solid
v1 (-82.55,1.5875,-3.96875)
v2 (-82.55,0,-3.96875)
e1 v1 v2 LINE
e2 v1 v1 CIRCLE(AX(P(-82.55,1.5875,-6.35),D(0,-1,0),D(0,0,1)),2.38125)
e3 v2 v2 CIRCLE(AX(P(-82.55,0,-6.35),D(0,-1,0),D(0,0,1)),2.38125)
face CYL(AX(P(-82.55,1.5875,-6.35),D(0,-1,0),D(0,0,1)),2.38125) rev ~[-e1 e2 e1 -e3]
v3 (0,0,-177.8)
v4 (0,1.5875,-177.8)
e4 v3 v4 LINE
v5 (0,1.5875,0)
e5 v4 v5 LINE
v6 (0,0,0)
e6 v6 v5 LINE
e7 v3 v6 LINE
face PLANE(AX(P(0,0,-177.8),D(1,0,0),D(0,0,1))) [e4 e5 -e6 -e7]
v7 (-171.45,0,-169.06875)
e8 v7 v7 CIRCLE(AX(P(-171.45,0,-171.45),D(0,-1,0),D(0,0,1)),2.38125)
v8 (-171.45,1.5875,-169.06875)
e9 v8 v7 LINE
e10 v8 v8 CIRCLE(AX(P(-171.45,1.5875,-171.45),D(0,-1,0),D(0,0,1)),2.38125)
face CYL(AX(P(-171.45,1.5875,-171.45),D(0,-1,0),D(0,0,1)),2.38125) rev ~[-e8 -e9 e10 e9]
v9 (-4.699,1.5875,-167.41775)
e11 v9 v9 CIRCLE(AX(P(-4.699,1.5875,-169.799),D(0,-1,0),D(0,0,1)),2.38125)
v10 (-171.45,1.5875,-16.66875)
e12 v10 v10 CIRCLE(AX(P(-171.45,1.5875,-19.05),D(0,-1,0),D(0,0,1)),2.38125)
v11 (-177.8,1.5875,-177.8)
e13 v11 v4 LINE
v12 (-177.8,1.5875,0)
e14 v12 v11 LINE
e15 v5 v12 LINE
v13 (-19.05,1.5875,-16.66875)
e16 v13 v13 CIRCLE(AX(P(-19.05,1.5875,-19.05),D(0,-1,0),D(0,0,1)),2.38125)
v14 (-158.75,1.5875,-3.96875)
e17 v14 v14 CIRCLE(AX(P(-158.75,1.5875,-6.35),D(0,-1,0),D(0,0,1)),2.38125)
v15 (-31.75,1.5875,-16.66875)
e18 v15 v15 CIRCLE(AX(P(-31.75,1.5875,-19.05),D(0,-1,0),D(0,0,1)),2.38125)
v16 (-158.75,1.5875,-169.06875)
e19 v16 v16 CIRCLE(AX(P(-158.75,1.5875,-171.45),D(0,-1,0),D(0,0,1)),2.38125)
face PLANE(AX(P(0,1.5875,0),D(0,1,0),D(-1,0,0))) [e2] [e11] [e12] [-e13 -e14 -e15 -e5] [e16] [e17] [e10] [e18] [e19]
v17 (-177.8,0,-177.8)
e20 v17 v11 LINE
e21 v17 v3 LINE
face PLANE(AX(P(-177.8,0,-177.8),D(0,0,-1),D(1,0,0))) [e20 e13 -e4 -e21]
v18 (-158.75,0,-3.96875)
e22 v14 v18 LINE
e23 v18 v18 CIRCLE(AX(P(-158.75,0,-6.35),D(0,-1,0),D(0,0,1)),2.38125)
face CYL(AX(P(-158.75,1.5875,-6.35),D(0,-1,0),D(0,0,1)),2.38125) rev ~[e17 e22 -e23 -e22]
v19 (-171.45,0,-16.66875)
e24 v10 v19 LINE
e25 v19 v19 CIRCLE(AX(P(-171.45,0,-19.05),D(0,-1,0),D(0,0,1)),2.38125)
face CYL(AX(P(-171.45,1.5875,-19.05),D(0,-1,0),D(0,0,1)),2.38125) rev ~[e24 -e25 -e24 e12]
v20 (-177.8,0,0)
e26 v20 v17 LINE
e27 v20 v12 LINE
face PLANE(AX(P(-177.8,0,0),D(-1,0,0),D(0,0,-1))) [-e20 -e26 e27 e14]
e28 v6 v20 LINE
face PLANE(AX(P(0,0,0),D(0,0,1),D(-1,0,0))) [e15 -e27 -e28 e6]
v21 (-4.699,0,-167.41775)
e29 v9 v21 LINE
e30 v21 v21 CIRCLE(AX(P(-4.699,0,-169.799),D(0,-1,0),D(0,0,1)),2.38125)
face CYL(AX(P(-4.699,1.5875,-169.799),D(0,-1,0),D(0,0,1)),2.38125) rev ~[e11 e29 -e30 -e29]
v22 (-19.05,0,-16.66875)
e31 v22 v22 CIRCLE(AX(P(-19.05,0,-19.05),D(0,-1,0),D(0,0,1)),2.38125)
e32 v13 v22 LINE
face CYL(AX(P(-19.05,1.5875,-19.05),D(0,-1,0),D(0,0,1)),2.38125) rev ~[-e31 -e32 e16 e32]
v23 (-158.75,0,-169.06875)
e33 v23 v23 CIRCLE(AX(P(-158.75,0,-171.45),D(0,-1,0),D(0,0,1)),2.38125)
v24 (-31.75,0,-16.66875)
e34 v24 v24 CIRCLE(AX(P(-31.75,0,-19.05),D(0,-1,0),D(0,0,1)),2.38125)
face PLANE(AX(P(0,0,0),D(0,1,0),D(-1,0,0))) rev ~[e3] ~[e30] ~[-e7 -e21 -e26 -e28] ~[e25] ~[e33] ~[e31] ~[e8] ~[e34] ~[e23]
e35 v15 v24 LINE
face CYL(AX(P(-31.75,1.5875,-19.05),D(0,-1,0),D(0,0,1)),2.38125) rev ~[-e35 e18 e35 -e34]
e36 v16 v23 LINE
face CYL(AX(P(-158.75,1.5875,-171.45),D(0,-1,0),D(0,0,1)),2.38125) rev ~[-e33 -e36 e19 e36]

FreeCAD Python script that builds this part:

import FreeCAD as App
import Part
import Sketcher

V = App.Vector
Q = App.Units.Quantity

doc = App.newDocument("Part")
body = doc.addObject("PartDesign::Body", "Body")

# Sketch on XZ plane
sketch1 = body.newObject("Sketcher::SketchObject", "Sketch")
sketch1.AttachmentSupport = (doc.getObject("XZ_Plane"), [""])
sketch1.MapMode = "FlatFace"
sketch1.addGeometry(Part.LineSegment(V(-178, 0, 0), V(0, 0, 0)), False)
sketch1.addGeometry(Part.LineSegment(V(0, 0, 0), V(0, -178, 0)), False)
sketch1.addGeometry(Part.LineSegment(V(0, -178, 0), V(-178, -178, 0)), False)
sketch1.addGeometry(Part.LineSegment(V(-178, -178, 0), V(-178, 0, 0)), False)
sketch1.addConstraint(Sketcher.Constraint("Coincident", 0, 2, 1, 1))
sketch1.addConstraint(Sketcher.Constraint("Coincident", 1, 2, 2, 1))
sketch1.addConstraint(Sketcher.Constraint("Coincident", 2, 2, 3, 1))
sketch1.addConstraint(Sketcher.Constraint("Coincident", 3, 2, 0, 1))
sketch1.addConstraint(Sketcher.Constraint("Horizontal", 0))
sketch1.addConstraint(Sketcher.Constraint("Vertical", 1))
sketch1.addConstraint(Sketcher.Constraint("Horizontal", 2))
sketch1.addConstraint(Sketcher.Constraint("Vertical", 3))
sketch1.addConstraint(Sketcher.Constraint("Coincident", 0, 2, -1, 1))
sketch1.addConstraint(Sketcher.Constraint("Equal", 2, 1))
sketch1.addConstraint(Sketcher.Constraint("DistanceX", 0, 1, 0, 2, Q("7 in")))
pad1 = body.newObject("PartDesign::Pad", "Pad")
pad1.Profile = sketch1
pad1.Length = Q("0.0625 in")
pad1.Reversed = True

# Sketch on XZ plane
sketch2 = body.newObject("Sketcher::SketchObject", "Sketch001")
sketch2.AttachmentSupport = (doc.getObject("XZ_Plane"), [""])
sketch2.MapMode = "FlatFace"
sketch2.AttachmentOffset = App.Placement(V(0, 0, -0.0625 * 25.4), App.Rotation())
sketch2.addGeometry(Part.Circle(V(-171.4, -171.4, 0), V(0, 0, 1), 2.4), False)
sketch2.addGeometry(Part.Circle(V(-158.8, -171.4, 0), V(0, 0, 1), 2.4), False)
sketch2.addGeometry(Part.Circle(V(-19.1, -19.1, 0), V(0, 0, 1), 2.4), False)
sketch2.addGeometry(Part.Circle(V(-31.8, -19.1, 0), V(0, 0, 1), 2.4), False)
sketch2.addGeometry(Part.Circle(V(-171.4, -19.1, 0), V(0, 0, 1), 2.4), False)
sketch2.addGeometry(Part.Circle(V(-158.8, -6.3, 0), V(0, 0, 1), 2.4), False)
sketch2.addGeometry(Part.Circle(V(-4.7, -169.8, 0), V(0, 0, 1), 2.4), False)
sketch2.addConstraint(Sketcher.Constraint("Equal", 0, 1))
sketch2.addConstraint(Sketcher.Constraint("Equal", 1, 2))
sketch2.addConstraint(Sketcher.Constraint("Equal", 2, 3))
sketch2.addConstraint(Sketcher.Constraint("Equal", 3, 4))
sketch2.addConstraint(Sketcher.Constraint("Equal", 4, 5))
sketch2.addConstraint(Sketcher.Constraint("Equal", 5, 6))
sketch2.addConstraint(Sketcher.Constraint("Horizontal", 0, 3, 1, 3))
sketch2.addConstraint(Sketcher.Constraint("Horizontal", 2, 3, 3, 3))
sketch2.addConstraint(Sketcher.Constraint("Horizontal", 3, 3, 4, 3))
sketch2.addConstraint(Sketcher.Constraint("Vertical", 0, 3, 4, 3))
sketch2.addConstraint(Sketcher.Constraint("Vertical", 1, 3, 5, 3))
sketch2.addConstraint(Sketcher.Constraint("Diameter", 0, Q("0.1875 in")))
sketch2.addConstraint(Sketcher.Constraint("DistanceY", 1, 3, 2, 3, Q("6 in")))
sketch2.addConstraint(Sketcher.Constraint("DistanceX", 0, 3, 2, 3, Q("6 in")))
sketch2.addConstraint(Sketcher.Constraint("DistanceX", 1, 3, 3, 3, Q("5 in")))
sketch2.addConstraint(Sketcher.Constraint("DistanceX", 0, 3, 1, 3, Q("0.5 in")))
sketch2.addConstraint(Sketcher.Constraint("DistanceY", 4, 3, 5, 3, Q("0.5 in")))
sketch2.addConstraint(Sketcher.Constraint("DistanceX", 0, 3, -1, 1, Q("6.75 in")))
sketch2.addConstraint(Sketcher.Constraint("DistanceY", 0, 3, -1, 1, Q("6.75 in")))
sketch2.addConstraint(Sketcher.Constraint("DistanceX", 6, 3, -1, 1, Q("0.185 in")))
sketch2.addConstraint(Sketcher.Constraint("DistanceY", 6, 3, -1, 1, Q("6.685 in")))
doc.recompute()
hole = body.newObject("PartDesign::Hole", "Hole")
hole.Profile = sketch2
hole.ThreadType = "None"
hole.Diameter = Q("0.1875 in")
hole.DepthType = "ThroughAll"
hole.Reversed = True

# Sketch on XZ plane
sketch3 = body.newObject("Sketcher::SketchObject", "Sketch002")
sketch3.AttachmentSupport = (doc.getObject("XZ_Plane"), [""])
sketch3.MapMode = "FlatFace"
sketch3.AttachmentOffset = App.Placement(V(0, 0, -0.0625 * 25.4), App.Rotation())
sketch3.addGeometry(Part.Circle(V(-82.5, -6.3, 0), V(0, 0, 1), 2.4), False)
sketch3.addConstraint(Sketcher.Constraint("Diameter", 0, Q("0.1875 in")))
sketch3.addConstraint(Sketcher.Constraint("DistanceX", 0, 3, -1, 1, Q("3.25 in")))
sketch3.addConstraint(Sketcher.Constraint("DistanceY", 0, 3, -1, 1, Q("0.25 in")))
doc.recompute()
hole2 = body.newObject("PartDesign::Hole", "Hole001")
hole2.Profile = sketch3
hole2.ThreadType = "None"
hole2.Diameter = Q("0.1875 in")
hole2.DepthType = "ThroughAll"
hole2.Reversed = True

doc.recompute()
